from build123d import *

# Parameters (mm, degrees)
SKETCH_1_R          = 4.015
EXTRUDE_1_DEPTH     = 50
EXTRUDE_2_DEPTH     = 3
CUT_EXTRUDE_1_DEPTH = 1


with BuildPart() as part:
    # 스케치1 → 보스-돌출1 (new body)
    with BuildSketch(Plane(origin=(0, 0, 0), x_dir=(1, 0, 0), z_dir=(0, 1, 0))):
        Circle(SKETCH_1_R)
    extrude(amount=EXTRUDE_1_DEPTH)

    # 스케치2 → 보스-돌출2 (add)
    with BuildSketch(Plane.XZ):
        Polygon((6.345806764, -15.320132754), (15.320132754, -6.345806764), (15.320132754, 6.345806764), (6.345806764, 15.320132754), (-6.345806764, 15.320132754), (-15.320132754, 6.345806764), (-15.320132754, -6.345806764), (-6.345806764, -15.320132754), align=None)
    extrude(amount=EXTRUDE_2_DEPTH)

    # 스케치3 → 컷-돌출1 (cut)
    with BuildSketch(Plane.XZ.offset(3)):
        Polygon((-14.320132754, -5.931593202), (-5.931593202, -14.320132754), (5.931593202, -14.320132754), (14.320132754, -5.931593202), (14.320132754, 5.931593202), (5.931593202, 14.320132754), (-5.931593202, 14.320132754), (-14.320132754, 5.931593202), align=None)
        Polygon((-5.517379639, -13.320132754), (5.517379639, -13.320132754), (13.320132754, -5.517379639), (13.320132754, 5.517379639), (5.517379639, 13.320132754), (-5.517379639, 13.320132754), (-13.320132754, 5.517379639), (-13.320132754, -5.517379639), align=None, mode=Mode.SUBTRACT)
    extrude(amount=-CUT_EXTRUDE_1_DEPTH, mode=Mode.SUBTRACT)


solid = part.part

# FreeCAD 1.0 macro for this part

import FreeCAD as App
import Part
import Sketcher

doc = App.newDocument("Part")
body = doc.addObject("PartDesign::Body", "Body")

sketch1 = body.newObject("Sketcher::SketchObject", "Sketch")
sketch1.AttachmentSupport = (doc.getObject("XZ_Plane"), [""])
sketch1.MapMode = "FlatFace"
sketch1.addGeometry(Part.Circle(App.Vector(0, 0, 0), App.Vector(0, 0, 1), 4.015), False)
sketch1.addConstraint([
    Sketcher.Constraint("Coincident", 0, 3, -1, 1),
    Sketcher.Constraint("Diameter", 0, 8.03),
])
pad1 = body.newObject("PartDesign::Pad", "Pad")
pad1.Profile = sketch1
pad1.Length = 50
pad1.Reversed = True

sketch2 = body.newObject("Sketcher::SketchObject", "Sketch001")
sketch2.AttachmentSupport = (doc.getObject("XZ_Plane"), [""])
sketch2.MapMode = "FlatFace"
sketch2.addGeometry([
    Part.LineSegment(App.Vector(6.345807, -15.320133, 0), App.Vector(15.320133, -6.345807, 0)),
    Part.LineSegment(App.Vector(15.320133, -6.345807, 0), App.Vector(15.320133, 6.345807, 0)),
    Part.LineSegment(App.Vector(15.320133, 6.345807, 0), App.Vector(6.345807, 15.320133, 0)),
    Part.LineSegment(App.Vector(6.345807, 15.320133, 0), App.Vector(-6.345807, 15.320133, 0)),
    Part.LineSegment(App.Vector(-6.345807, 15.320133, 0), App.Vector(-15.320133, 6.345807, 0)),
    Part.LineSegment(App.Vector(-15.320133, 6.345807, 0), App.Vector(-15.320133, -6.345807, 0)),
    Part.LineSegment(App.Vector(-15.320133, -6.345807, 0), App.Vector(-6.345807, -15.320133, 0)),
    Part.LineSegment(App.Vector(-6.345807, -15.320133, 0), App.Vector(6.345807, -15.320133, 0)),
], False)
sketch2.addConstraint([
    Sketcher.Constraint("Coincident", 0, 2, 1, 1),
    Sketcher.Constraint("Coincident", 1, 2, 2, 1),
    Sketcher.Constraint("Coincident", 2, 2, 3, 1),
    Sketcher.Constraint("Coincident", 3, 2, 4, 1),
    Sketcher.Constraint("Coincident", 4, 2, 5, 1),
    Sketcher.Constraint("Coincident", 5, 2, 6, 1),
    Sketcher.Constraint("Coincident", 6, 2, 7, 1),
    Sketcher.Constraint("Coincident", 7, 2, 0, 1),
    Sketcher.Constraint("Vertical", 1),
    Sketcher.Constraint("Horizontal", 3),
    Sketcher.Constraint("Vertical", 5),
    Sketcher.Constraint("Horizontal", 7),
    Sketcher.Constraint("Symmetric", 0, 2, 4, 2, -1, 1),
    Sketcher.Constraint("Symmetric", 2, 2, 6, 2, -1, 1),
    Sketcher.Constraint("Perpendicular", 0, 2),
    Sketcher.Constraint("Perpendicular", 2, 4),
    Sketcher.Constraint("Perpendicular", 4, 6),
    Sketcher.Constraint("Horizontal", 1, 2, 4, 2),
    Sketcher.Constraint("Vertical", 3, 2, 6, 2),
    Sketcher.Constraint("Equal", 7, 1),
    Sketcher.Constraint("DistanceX", 3, 2, 3, 1, 12.691614),
    Sketcher.Constraint("DistanceY", 0, 2, 2, 2, 21.66594),
])
pad2 = body.newObject("PartDesign::Pad", "Pad001")
pad2.Profile = sketch2
pad2.Length = 3

sketch3 = body.newObject("Sketcher::SketchObject", "Sketch002")
sketch3.AttachmentSupport = (doc.getObject("XZ_Plane"), [""])
sketch3.MapMode = "FlatFace"
sketch3.AttachmentOffset = App.Placement(App.Vector(0, 0, 3), App.Rotation())
sketch3.addGeometry([
    Part.LineSegment(App.Vector(-14.320133, -5.931593, 0), App.Vector(-5.931593, -14.320133, 0)),
    Part.LineSegment(App.Vector(-5.931593, -14.320133, 0), App.Vector(5.931593, -14.320133, 0)),
    Part.LineSegment(App.Vector(5.931593, -14.320133, 0), App.Vector(14.320133, -5.931593, 0)),
    Part.LineSegment(App.Vector(14.320133, -5.931593, 0), App.Vector(14.320133, 5.931593, 0)),
    Part.LineSegment(App.Vector(14.320133, 5.931593, 0), App.Vector(5.931593, 14.320133, 0)),
    Part.LineSegment(App.Vector(5.931593, 14.320133, 0), App.Vector(-5.931593, 14.320133, 0)),
    Part.LineSegment(App.Vector(-5.931593, 14.320133, 0), App.Vector(-14.320133, 5.931593, 0)),
    Part.LineSegment(App.Vector(-14.320133, 5.931593, 0), App.Vector(-14.320133, -5.931593, 0)),
    Part.LineSegment(App.Vector(5.51738, -13.320133, 0), App.Vector(-5.51738, -13.320133, 0)),
    Part.LineSegment(App.Vector(-5.51738, -13.320133, 0), App.Vector(-13.320133, -5.51738, 0)),
    Part.LineSegment(App.Vector(-13.320133, -5.51738, 0), App.Vector(-13.320133, 5.51738, 0)),
    Part.LineSegment(App.Vector(-13.320133, 5.51738, 0), App.Vector(-5.51738, 13.320133, 0)),
    Part.LineSegment(App.Vector(-5.51738, 13.320133, 0), App.Vector(5.51738, 13.320133, 0)),
    Part.LineSegment(App.Vector(5.51738, 13.320133, 0), App.Vector(13.320133, 5.51738, 0)),
    Part.LineSegment(App.Vector(13.320133, 5.51738, 0), App.Vector(13.320133, -5.51738, 0)),
    Part.LineSegment(App.Vector(13.320133, -5.51738, 0), App.Vector(5.51738, -13.320133, 0)),
], False)
sketch3.addConstraint([
    Sketcher.Constraint("Coincident", 0, 2, 1, 1),
    Sketcher.Constraint("Coincident", 1, 2, 2, 1),
    Sketcher.Constraint("Coincident", 2, 2, 3, 1),
    Sketcher.Constraint("Coincident", 3, 2, 4, 1),
    Sketcher.Constraint("Coincident", 4, 2, 5, 1),
    Sketcher.Constraint("Coincident", 5, 2, 6, 1),
    Sketcher.Constraint("Coincident", 6, 2, 7, 1),
    Sketcher.Constraint("Coincident", 7, 2, 0, 1),
    Sketcher.Constraint("Coincident", 8, 2, 9, 1),
    Sketcher.Constraint("Coincident", 9, 2, 10, 1),
    Sketcher.Constraint("Coincident", 10, 2, 11, 1),
    Sketcher.Constraint("Coincident", 11, 2, 12, 1),
    Sketcher.Constraint("Coincident", 12, 2, 13, 1),
    Sketcher.Constraint("Coincident", 13, 2, 14, 1),
    Sketcher.Constraint("Coincident", 14, 2, 15, 1),
    Sketcher.Constraint("Coincident", 15, 2, 8, 1),
    Sketcher.Constraint("Horizontal", 1),
    Sketcher.Constraint("Vertical", 3),
    Sketcher.Constraint("Horizontal", 5),
    Sketcher.Constraint("Vertical", 7),
    Sketcher.Constraint("Horizontal", 8),
    Sketcher.Constraint("Vertical", 10),
    Sketcher.Constraint("Horizontal", 12),
    Sketcher.Constraint("Vertical", 14),
    Sketcher.Constraint("Symmetric", 0, 2, 4, 2, -1, 1),
    Sketcher.Constraint("Symmetric", 2, 2, 6, 2, -1, 1),
    Sketcher.Constraint("Symmetric", 8, 2, 12, 2, -1, 1),
    Sketcher.Constraint("Symmetric", 9, 2, 13, 2, -1, 1),
    Sketcher.Constraint("Perpendicular", 0, 2),
    Sketcher.Constraint("Perpendicular", 2, 4),
    Sketcher.Constraint("Perpendicular", 4, 6),
    Sketcher.Constraint("Perpendicular", 6, 9),
    Sketcher.Constraint("Perpendicular", 9, 11),
    Sketcher.Constraint("Perpendicular", 13, 15),
    Sketcher.Constraint("Horizontal", 3, 2, 6, 2),
    Sketcher.Constraint("Horizontal", 10, 2, 13, 2),
    Sketcher.Constraint("Horizontal", 9, 2, 14, 2),
    Sketcher.Constraint("Vertical", 1, 2, 4, 2),
    Sketcher.Constraint("Equal", 5, 3),
    Sketcher.Constraint("Equal", 12, 10),
    Sketcher.Constraint("DistanceY", 0, 2, 8, 2, 1.0),
    Sketcher.Constraint("DistanceX", 8, 2, 8, 1, 11.034759),
    Sketcher.Constraint("Distance", 9, 11.034759),
    Sketcher.Constraint("DistanceX", 1, 1, 1, 2, 11.863186),
])
pocket1 = body.newObject("PartDesign::Pocket", "Pocket")
pocket1.Profile = sketch3
pocket1.Length = 1

doc.recompute()
